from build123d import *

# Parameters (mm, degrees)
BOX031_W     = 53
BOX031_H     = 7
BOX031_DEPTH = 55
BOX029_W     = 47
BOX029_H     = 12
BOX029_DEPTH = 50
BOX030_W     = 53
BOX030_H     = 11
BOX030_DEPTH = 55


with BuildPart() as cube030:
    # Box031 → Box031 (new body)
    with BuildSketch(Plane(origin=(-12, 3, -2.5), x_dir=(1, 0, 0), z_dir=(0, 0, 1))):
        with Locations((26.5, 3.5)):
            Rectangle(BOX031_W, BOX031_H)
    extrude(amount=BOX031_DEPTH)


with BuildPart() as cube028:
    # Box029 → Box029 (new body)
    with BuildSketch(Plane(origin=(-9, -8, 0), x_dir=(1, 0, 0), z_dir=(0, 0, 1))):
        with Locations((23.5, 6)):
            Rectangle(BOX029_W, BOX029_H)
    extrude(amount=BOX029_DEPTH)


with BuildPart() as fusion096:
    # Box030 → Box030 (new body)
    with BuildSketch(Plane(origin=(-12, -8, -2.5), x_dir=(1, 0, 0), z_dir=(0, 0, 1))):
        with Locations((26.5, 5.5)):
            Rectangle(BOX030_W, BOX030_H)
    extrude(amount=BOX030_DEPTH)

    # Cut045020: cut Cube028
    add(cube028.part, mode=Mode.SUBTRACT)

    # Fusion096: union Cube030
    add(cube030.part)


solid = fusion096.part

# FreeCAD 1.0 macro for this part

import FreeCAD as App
import Part
import Sketcher

V = App.Vector
Q = App.Units.Quantity

doc = App.newDocument("Part")
body = doc.addObject("PartDesign::Body", "Body")

sketch1 = doc.addObject("Sketcher::SketchObject", "Sketch")
body.addObject(sketch1)
sketch1.AttachmentSupport = (doc.XY_Plane, [""])
sketch1.MapMode = "FlatFace"
sketch1.AttachmentOffset = App.Placement(V(0, 0, -2.5), App.Rotation())
sketch1.addGeometry([
    Part.LineSegment(V(-12, 10, 0), V(-12, 3, 0)),
    Part.LineSegment(V(-12, 3, 0), V(41, 3, 0)),
    Part.LineSegment(V(41, 3, 0), V(41, 10, 0)),
    Part.LineSegment(V(41, 10, 0), V(-12, 10, 0)),
], False)
sketch1.addConstraint([
    Sketcher.Constraint("Coincident", 0, 2, 1, 1),
    Sketcher.Constraint("Coincident", 1, 2, 2, 1),
    Sketcher.Constraint("Coincident", 2, 2, 3, 1),
    Sketcher.Constraint("Coincident", 3, 2, 0, 1),
    Sketcher.Constraint("Vertical", 0),
    Sketcher.Constraint("Horizontal", 1),
    Sketcher.Constraint("Vertical", 2),
    Sketcher.Constraint("Horizontal", 3),
    Sketcher.Constraint("DistanceX", 1, 1, 1, 2, Q("53 mm")),
    Sketcher.Constraint("DistanceY", 0, 2, 0, 1, Q("7 mm")),
    Sketcher.Constraint("DistanceX", 0, 2, -1, 1, Q("12 mm")),
    Sketcher.Constraint("DistanceY", -1, 1, 0, 2, Q("3 mm")),
])
pad1 = doc.addObject("PartDesign::Pad", "Pad")
body.addObject(pad1)
pad1.Profile = sketch1
pad1.Length = 55
body2 = doc.addObject("PartDesign::Body", "Body001")

sketch2 = doc.addObject("Sketcher::SketchObject", "Sketch001")
body2.addObject(sketch2)
sketch2.AttachmentSupport = (doc.getObject("XY_Plane001"), [""])
sketch2.MapMode = "FlatFace"
sketch2.addGeometry([
    Part.LineSegment(V(-9, 4, 0), V(-9, -8, 0)),
    Part.LineSegment(V(-9, -8, 0), V(38, -8, 0)),
    Part.LineSegment(V(38, -8, 0), V(38, 4, 0)),
    Part.LineSegment(V(38, 4, 0), V(-9, 4, 0)),
], False)
sketch2.addConstraint([
    Sketcher.Constraint("Coincident", 0, 2, 1, 1),
    Sketcher.Constraint("Coincident", 1, 2, 2, 1),
    Sketcher.Constraint("Coincident", 2, 2, 3, 1),
    Sketcher.Constraint("Coincident", 3, 2, 0, 1),
    Sketcher.Constraint("Vertical", 0),
    Sketcher.Constraint("Horizontal", 1),
    Sketcher.Constraint("Vertical", 2),
    Sketcher.Constraint("Horizontal", 3),
    Sketcher.Constraint("DistanceX", 1, 1, 1, 2, Q("47 mm")),
    Sketcher.Constraint("DistanceY", 0, 2, 0, 1, Q("12 mm")),
    Sketcher.Constraint("DistanceX", 0, 2, -1, 1, Q("9 mm")),
    Sketcher.Constraint("DistanceY", 0, 2, -1, 1, Q("8 mm")),
])
pad2 = doc.addObject("PartDesign::Pad", "Pad001")
body2.addObject(pad2)
pad2.Profile = sketch2
pad2.Length = 50
body3 = doc.addObject("PartDesign::Body", "Body002")

sketch3 = doc.addObject("Sketcher::SketchObject", "Sketch002")
body3.addObject(sketch3)
sketch3.AttachmentSupport = (doc.getObject("XY_Plane002"), [""])
sketch3.MapMode = "FlatFace"
sketch3.AttachmentOffset = App.Placement(V(0, 0, -2.5), App.Rotation())
sketch3.addGeometry([
    Part.LineSegment(V(-12, 3, 0), V(-12, -8, 0)),
    Part.LineSegment(V(-12, -8, 0), V(41, -8, 0)),
    Part.LineSegment(V(41, -8, 0), V(41, 3, 0)),
    Part.LineSegment(V(41, 3, 0), V(-12, 3, 0)),
], False)
sketch3.addConstraint([
    Sketcher.Constraint("Coincident", 0, 2, 1, 1),
    Sketcher.Constraint("Coincident", 1, 2, 2, 1),
    Sketcher.Constraint("Coincident", 2, 2, 3, 1),
    Sketcher.Constraint("Coincident", 3, 2, 0, 1),
    Sketcher.Constraint("Vertical", 0),
    Sketcher.Constraint("Horizontal", 1),
    Sketcher.Constraint("Vertical", 2),
    Sketcher.Constraint("Horizontal", 3),
    Sketcher.Constraint("DistanceX", 1, 1, 1, 2, Q("53 mm")),
    Sketcher.Constraint("DistanceY", 0, 2, 0, 1, Q("11 mm")),
    Sketcher.Constraint("DistanceX", 0, 2, -1, 1, Q("12 mm")),
    Sketcher.Constraint("DistanceY", 0, 2, -1, 1, Q("8 mm")),
])
pad3 = doc.addObject("PartDesign::Pad", "Pad002")
body3.addObject(pad3)
pad3.Profile = sketch3
pad3.Length = 55
doc.recompute()

boolean = doc.addObject("PartDesign::Boolean", "Boolean")
body3.addObject(boolean)
boolean.Type = "Cut"
boolean.addObjects([body2])
doc.recompute()

boolean2 = doc.addObject("PartDesign::Boolean", "Boolean001")
body3.addObject(boolean2)
boolean2.Type = "Fuse"
boolean2.addObjects([body])

doc.recompute()
